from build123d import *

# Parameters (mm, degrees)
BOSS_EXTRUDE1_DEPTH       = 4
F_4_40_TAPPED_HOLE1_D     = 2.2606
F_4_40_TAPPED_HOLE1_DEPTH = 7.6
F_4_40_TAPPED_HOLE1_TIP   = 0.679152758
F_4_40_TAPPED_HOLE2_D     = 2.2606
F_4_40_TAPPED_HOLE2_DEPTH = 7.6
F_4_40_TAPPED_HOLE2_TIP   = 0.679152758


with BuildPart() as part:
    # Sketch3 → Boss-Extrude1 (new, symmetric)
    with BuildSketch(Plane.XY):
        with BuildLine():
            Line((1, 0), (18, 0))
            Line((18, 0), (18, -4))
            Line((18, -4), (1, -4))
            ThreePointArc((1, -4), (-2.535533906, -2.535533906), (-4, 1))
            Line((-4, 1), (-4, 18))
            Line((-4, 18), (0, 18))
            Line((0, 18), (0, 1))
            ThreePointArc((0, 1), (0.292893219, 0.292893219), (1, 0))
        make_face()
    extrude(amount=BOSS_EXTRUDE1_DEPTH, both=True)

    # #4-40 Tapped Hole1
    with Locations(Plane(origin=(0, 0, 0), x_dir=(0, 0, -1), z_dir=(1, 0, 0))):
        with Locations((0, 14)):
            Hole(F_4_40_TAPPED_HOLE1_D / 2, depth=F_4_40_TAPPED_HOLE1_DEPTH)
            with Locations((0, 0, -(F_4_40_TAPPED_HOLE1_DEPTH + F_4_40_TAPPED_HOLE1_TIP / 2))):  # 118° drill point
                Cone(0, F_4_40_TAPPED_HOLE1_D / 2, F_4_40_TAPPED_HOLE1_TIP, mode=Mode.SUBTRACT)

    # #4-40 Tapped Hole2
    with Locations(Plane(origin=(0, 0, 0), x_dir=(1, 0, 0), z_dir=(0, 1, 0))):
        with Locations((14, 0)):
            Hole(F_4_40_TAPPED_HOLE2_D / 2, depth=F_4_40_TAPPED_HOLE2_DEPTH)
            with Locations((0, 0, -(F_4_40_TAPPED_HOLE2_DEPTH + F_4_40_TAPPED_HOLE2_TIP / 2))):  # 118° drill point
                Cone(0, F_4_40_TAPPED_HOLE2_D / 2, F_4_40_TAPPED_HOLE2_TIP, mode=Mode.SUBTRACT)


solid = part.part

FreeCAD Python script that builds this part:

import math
import FreeCAD as App
import Part
import Sketcher
from FreeCAD import Vector
Q = App.Units.Quantity

doc = App.newDocument("Part")
body = doc.addObject("PartDesign::Body", "Body")

sketch1 = body.newObject("Sketcher::SketchObject", "Sketch")
sketch1.AttachmentSupport = (doc.getObject("XY_Plane"), [""])
sketch1.MapMode = "FlatFace"
sketch1.addGeometry([
    Part.LineSegment(Vector(18, 0, 0), Vector(1, 0, 0)),
    Part.ArcOfCircle(Part.Circle(Vector(1, 1, 0), Vector(0, 0, 1), 1), math.radians(-180), math.radians(-90)),
    Part.LineSegment(Vector(0, 1, 0), Vector(0, 18, 0)),
    Part.LineSegment(Vector(0, 18, 0), Vector(-4, 18, 0)),
    Part.LineSegment(Vector(-4, 18, 0), Vector(-4, 1, 0)),
    Part.ArcOfCircle(Part.Circle(Vector(1, 1, 0), Vector(0, 0, 1), 5), math.radians(180), math.radians(270)),
    Part.LineSegment(Vector(1, -4, 0), Vector(18, -4, 0)),
    Part.LineSegment(Vector(18, -4, 0), Vector(18, 0, 0)),
], False)
sketch1.addConstraint([
    Sketcher.Constraint("Tangent", 0, 2, 1, 2),
    Sketcher.Constraint("Tangent", 1, 1, 2, 1),
    Sketcher.Constraint("Coincident", 2, 2, 3, 1),
    Sketcher.Constraint("Coincident", 3, 2, 4, 1),
    Sketcher.Constraint("Tangent", 4, 2, 5, 1),
    Sketcher.Constraint("Tangent", 5, 2, 6, 1),
    Sketcher.Constraint("Coincident", 6, 2, 7, 1),
    Sketcher.Constraint("Coincident", 7, 2, 0, 1),
    Sketcher.Constraint("Horizontal", 0),
    Sketcher.Constraint("Vertical", 2),
    Sketcher.Constraint("Horizontal", 3),
    Sketcher.Constraint("Vertical", 4),
    Sketcher.Constraint("Horizontal", 6),
    Sketcher.Constraint("Vertical", 7),
    Sketcher.Constraint("Coincident", 5, 3, 1, 3),
    Sketcher.Constraint("PointOnObject", 0, 2, -1),
    Sketcher.Constraint("PointOnObject", 1, 1, -2),
    Sketcher.Constraint("Equal", 6, 2),
    Sketcher.Constraint("Radius", 1, Q("1 mm")),
    Sketcher.Constraint("Radius", 5, Q("5 mm")),
    Sketcher.Constraint("DistanceX", 0, 2, 0, 1, Q("17 mm")),
])
pad1 = body.newObject("PartDesign::Pad", "Pad")
pad1.Profile = sketch1
pad1.Length = 8
pad1.Midplane = True

sketch2 = body.newObject("Sketcher::SketchObject", "Sketch001")
sketch2.AttachmentSupport = (doc.getObject("YZ_Plane"), [""])
sketch2.MapMode = "FlatFace"
sketch2.addGeometry(Part.Circle(Vector(14, 0, 0), Vector(0, 0, 1), 1.1303), False)
sketch2.addConstraint([
    Sketcher.Constraint("PointOnObject", 0, 3, -1),
    Sketcher.Constraint("DistanceX", -1, 1, 0, 3, Q("14 mm")),
    Sketcher.Constraint("Diameter", 0, Q("2.2606 mm")),
])
doc.recompute()
hole = body.newObject("PartDesign::Hole", "Hole")
hole.Profile = sketch2
hole.ThreadType = "None"
hole.Diameter = 2.2606
hole.DepthType = "Dimension"
hole.Depth = 7.6
hole.DrillPoint = "Angled"
hole.DrillPointAngle = 118

sketch3 = body.newObject("Sketcher::SketchObject", "Sketch002")
sketch3.AttachmentSupport = (doc.getObject("XZ_Plane"), [""])
sketch3.MapMode = "FlatFace"
sketch3.addGeometry(Part.Circle(Vector(14, 0, 0), Vector(0, 0, 1), 1.1303), False)
sketch3.addConstraint([
    Sketcher.Constraint("PointOnObject", 0, 3, -1),
    Sketcher.Constraint("DistanceX", -1, 1, 0, 3, Q("14 mm")),
    Sketcher.Constraint("Diameter", 0, Q("2.2606 mm")),
])
doc.recompute()
hole2 = body.newObject("PartDesign::Hole", "Hole001")
hole2.Profile = sketch3
hole2.ThreadType = "None"
hole2.Diameter = 2.2606
hole2.DepthType = "Dimension"
hole2.Depth = 7.6
hole2.DrillPoint = "Angled"
hole2.DrillPointAngle = 118
hole2.Reversed = True

doc.recompute()
